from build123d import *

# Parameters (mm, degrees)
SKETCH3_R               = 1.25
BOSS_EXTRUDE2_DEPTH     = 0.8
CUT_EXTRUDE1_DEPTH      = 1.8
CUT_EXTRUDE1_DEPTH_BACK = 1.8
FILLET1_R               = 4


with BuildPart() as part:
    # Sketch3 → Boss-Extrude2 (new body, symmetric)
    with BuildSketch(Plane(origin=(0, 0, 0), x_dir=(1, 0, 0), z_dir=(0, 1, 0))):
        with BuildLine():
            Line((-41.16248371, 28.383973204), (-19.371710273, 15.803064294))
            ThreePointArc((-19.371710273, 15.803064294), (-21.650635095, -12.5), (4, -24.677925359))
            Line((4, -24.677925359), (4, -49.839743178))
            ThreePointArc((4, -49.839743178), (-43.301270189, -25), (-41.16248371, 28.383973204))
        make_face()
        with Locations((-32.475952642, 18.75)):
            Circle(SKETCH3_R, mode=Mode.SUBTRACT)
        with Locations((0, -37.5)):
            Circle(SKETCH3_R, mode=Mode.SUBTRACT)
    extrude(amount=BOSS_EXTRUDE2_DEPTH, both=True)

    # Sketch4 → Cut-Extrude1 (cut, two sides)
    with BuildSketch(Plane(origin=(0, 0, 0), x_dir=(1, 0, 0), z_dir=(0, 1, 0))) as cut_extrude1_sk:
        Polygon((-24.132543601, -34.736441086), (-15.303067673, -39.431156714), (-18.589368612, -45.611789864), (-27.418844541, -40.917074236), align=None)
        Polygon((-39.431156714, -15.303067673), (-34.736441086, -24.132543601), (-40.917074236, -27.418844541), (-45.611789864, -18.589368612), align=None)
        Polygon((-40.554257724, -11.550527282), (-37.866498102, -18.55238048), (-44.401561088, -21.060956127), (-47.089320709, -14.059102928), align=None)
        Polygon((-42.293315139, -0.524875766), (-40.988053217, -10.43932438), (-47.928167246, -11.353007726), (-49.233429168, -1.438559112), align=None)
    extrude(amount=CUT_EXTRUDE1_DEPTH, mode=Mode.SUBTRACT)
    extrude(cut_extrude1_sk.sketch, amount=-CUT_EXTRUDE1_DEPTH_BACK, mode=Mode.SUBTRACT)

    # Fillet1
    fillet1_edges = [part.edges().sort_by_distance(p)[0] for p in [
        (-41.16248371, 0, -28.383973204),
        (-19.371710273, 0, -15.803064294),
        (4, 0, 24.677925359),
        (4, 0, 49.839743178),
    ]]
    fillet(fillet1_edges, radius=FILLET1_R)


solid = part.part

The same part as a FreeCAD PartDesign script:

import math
import FreeCAD as App
import Part
import Sketcher
from FreeCAD import Vector
Q = App.Units.Quantity


def edges_at(feature, points):
    """Names of the edges that pass closest to the given points."""
    edges = feature.Shape.Edges
    near = lambda p: min(range(len(edges)), key=lambda i: edges[i].distToShape(Part.Vertex(*p))[0])
    return sorted({f"Edge{near(p) + 1}" for p in points})

doc = App.newDocument("Part")
params = doc.addObject("Spreadsheet::Sheet", "Params")
for row, (alias, value) in enumerate([
    ("sketch1_radius", "50 mm"),
    ("sketch1_radius2", "25 mm"),
    ("sketch1_diameter", "2.5 mm"),
    ("pad1_length", "1.6 mm"),
    ("sketch2_length", "10 mm"),
    ("sketch2_length2", "7 mm"),
    ("fillet_radius", "4 mm"),
], start=1):
    params.set(f"A{row}", alias)
    params.set(f"B{row}", "=" + value)
    params.setAlias(f"B{row}", alias)

body = doc.addObject("PartDesign::Body", "Body")

# Sketch on XZ plane
sketch1 = body.newObject("Sketcher::SketchObject", "Sketch")
sketch1.AttachmentSupport = (doc.getObject("XZ_Plane"), [""])
sketch1.MapMode = "FlatFace"
sketch1.addGeometry([
    Part.LineSegment(Vector(-19.37171, -15.803064, 0), Vector(-41.162484, -28.383973, 0)),  # 0
    Part.ArcOfCircle(Part.Circle(Vector(0, 0, 0), Vector(0, 0, 1), 50), math.radians(85.411434), math.radians(214.588566)),  # 1
    Part.LineSegment(Vector(4, 49.839743, 0), Vector(4, 24.677925, 0)),  # 2
    Part.ArcOfCircle(Part.Circle(Vector(0, 0, 0), Vector(0, 0, 1), 25), math.radians(80.793104), math.radians(219.206896)),  # 3
    Part.Circle(Vector(0, 37.5, 0), Vector(0, 0, 1), 1.25),  # 4
    Part.Circle(Vector(-32.475953, -18.75, 0), Vector(0, 0, 1), 1.25),  # 5
], False)
sketch1.addConstraint([
    Sketcher.Constraint("Coincident", 0, 2, 1, 2),
    Sketcher.Constraint("Coincident", 1, 1, 2, 1),
    Sketcher.Constraint("Coincident", 2, 2, 3, 1),
    Sketcher.Constraint("Coincident", 3, 2, 0, 1),
    Sketcher.Constraint("Vertical", 2),
    Sketcher.Constraint("Coincident", 1, 3, -1, 1),
    Sketcher.Constraint("Coincident", 3, 3, -1, 1),
    Sketcher.Constraint("Equal", 4, 5),
    Sketcher.Constraint("PointOnObject", 4, 3, -2),
    Sketcher.Constraint("Radius", 1, 50.0),
    Sketcher.Constraint("Radius", 3, 25.0),
    Sketcher.Constraint("Diameter", 4, 2.5),
    Sketcher.Constraint("Angle", 0, Q("-150 deg")),
    Sketcher.Constraint("DistanceX", -1, 1, 1, 1, 4.0),
    Sketcher.Constraint("DistanceY", -1, 1, 4, 3, 37.5),
    Sketcher.Constraint("DistanceY", 5, 3, -1, 1, 18.75),
    Sketcher.Constraint("DistanceX", 3, 2, -1, 1, 19.37171),
    Sketcher.Constraint("DistanceX", 0, 2, 5, 3, 8.686531),
])
sketch1.setExpression("Constraints[9]", "Params.sketch1_radius")
sketch1.setExpression("Constraints[10]", "Params.sketch1_radius2")
sketch1.setExpression("Constraints[11]", "Params.sketch1_diameter")
pad1 = body.newObject("PartDesign::Pad", "Pad")
pad1.Profile = sketch1
pad1.setExpression("Length", "Params.pad1_length")
pad1.Midplane = True

# Sketch on XZ plane
sketch2 = body.newObject("Sketcher::SketchObject", "Sketch001")
sketch2.AttachmentSupport = (doc.getObject("XZ_Plane"), [""])
sketch2.MapMode = "FlatFace"
sketch2.addGeometry([
    Part.LineSegment(Vector(-15.303068, 39.431157, 0), Vector(-24.132544, 34.736441, 0)),  # 0
    Part.LineSegment(Vector(-24.132544, 34.736441, 0), Vector(-27.418845, 40.917074, 0)),  # 1
    Part.LineSegment(Vector(-27.418845, 40.917074, 0), Vector(-18.589369, 45.61179, 0)),  # 2
    Part.LineSegment(Vector(-18.589369, 45.61179, 0), Vector(-15.303068, 39.431157, 0)),  # 3
    Part.LineSegment(Vector(-40.554258, 11.550527, 0), Vector(-47.089321, 14.059103, 0)),  # 4
    Part.LineSegment(Vector(-47.089321, 14.059103, 0), Vector(-45.394637, 18.473906, 0)),  # 5
    Part.LineSegment(Vector(-45.394637, 18.473906, 0), Vector(-45.61179, 18.589369, 0)),  # 6
    Part.LineSegment(Vector(-45.61179, 18.589369, 0), Vector(-44.671423, 20.357941, 0)),  # 7
    Part.LineSegment(Vector(-44.671423, 20.357941, 0), Vector(-44.401561, 21.060956, 0)),  # 8
    Part.LineSegment(Vector(-44.401561, 21.060956, 0), Vector(-44.315242, 21.027821, 0)),  # 9
    Part.LineSegment(Vector(-44.315242, 21.027821, 0), Vector(-40.917074, 27.418845, 0)),  # 10
    Part.LineSegment(Vector(-40.917074, 27.418845, 0), Vector(-34.736441, 24.132544, 0)),  # 11
    Part.LineSegment(Vector(-34.736441, 24.132544, 0), Vector(-38.289792, 17.449663, 0)),  # 12
    Part.LineSegment(Vector(-38.289792, 17.449663, 0), Vector(-40.554258, 11.550527, 0)),  # 13
    Part.LineSegment(Vector(-40.988053, 10.439324, 0), Vector(-42.293315, 0.524876, 0)),  # 14
    Part.LineSegment(Vector(-42.293315, 0.524876, 0), Vector(-49.233429, 1.438559, 0)),  # 15
    Part.LineSegment(Vector(-49.233429, 1.438559, 0), Vector(-47.928167, 11.353008, 0)),  # 16
    Part.LineSegment(Vector(-47.928167, 11.353008, 0), Vector(-40.988053, 10.439324, 0)),  # 17
], False)
sketch2.addConstraint([
    Sketcher.Constraint("Coincident", 0, 2, 1, 1),
    Sketcher.Constraint("Coincident", 1, 2, 2, 1),
    Sketcher.Constraint("Coincident", 2, 2, 3, 1),
    Sketcher.Constraint("Coincident", 3, 2, 0, 1),
    Sketcher.Constraint("Coincident", 4, 2, 5, 1),
    Sketcher.Constraint("Coincident", 5, 2, 6, 1),
    Sketcher.Constraint("Coincident", 6, 2, 7, 1),
    Sketcher.Constraint("Coincident", 7, 2, 8, 1),
    Sketcher.Constraint("Coincident", 8, 2, 9, 1),
    Sketcher.Constraint("Coincident", 9, 2, 10, 1),
    Sketcher.Constraint("Coincident", 10, 2, 11, 1),
    Sketcher.Constraint("Coincident", 11, 2, 12, 1),
    Sketcher.Constraint("Coincident", 12, 2, 13, 1),
    Sketcher.Constraint("Coincident", 13, 2, 4, 1),
    Sketcher.Constraint("Coincident", 14, 2, 15, 1),
    Sketcher.Constraint("Coincident", 15, 2, 16, 1),
    Sketcher.Constraint("Coincident", 16, 2, 17, 1),
    Sketcher.Constraint("Coincident", 17, 2, 14, 1),
    Sketcher.Constraint("Perpendicular", 0, 1),
    Sketcher.Constraint("Perpendicular", 1, 2),
    Sketcher.Constraint("Perpendicular", 2, 3),
    Sketcher.Constraint("Perpendicular", 4, 5),
    Sketcher.Constraint("Perpendicular", 6, 7),
    Sketcher.Constraint("Parallel", 5, 8),
    Sketcher.Constraint("Perpendicular", 8, 9),
    Sketcher.Constraint("Parallel", 7, 10),
    Sketcher.Constraint("Perpendicular", 10, 11),
    Sketcher.Constraint("Perpendicular", 11, 12),
    Sketcher.Constraint("Perpendicular", 9, 13),
    Sketcher.Constraint("Perpendicular", 14, 15),
    Sketcher.Constraint("Perpendicular", 15, 16),
    Sketcher.Constraint("Perpendicular", 16, 17),
    Sketcher.Constraint("Equal", 3, 4),
    Sketcher.Constraint("Equal", 4, 11),
    Sketcher.Constraint("Equal", 2, 14),
    Sketcher.Constraint("Equal", 11, 15),
    Sketcher.Constraint("Angle", 0, Q("-152 deg")),
    Sketcher.Constraint("Angle", 4, Q("159 deg")),
    Sketcher.Constraint("Angle", 6, Q("152 deg")),
    Sketcher.Constraint("Distance", 0, 10.0),
    Sketcher.Constraint("Distance", 1, 7.0),
    Sketcher.Constraint("Angle", 14, Q("-97.5 deg")),
    Sketcher.Constraint("DistanceX", 6, 2, 12, 2, 7.321998),
    Sketcher.Constraint("DistanceY", 7, 2, 0, 2, 14.378501),
    Sketcher.Constraint("DistanceX", 9, 2, 11, 2, 9.578801),
    Sketcher.Constraint("DistanceY", 16, 2, 5, 2, 7.120898),
    Sketcher.Constraint("Distance", 6, 0.245941),
    Sketcher.Constraint("Distance", 7, 2.003032),
    Sketcher.Constraint("Distance", 8, 0.753032),
    Sketcher.Constraint("Distance", 13, 6.31883),
    Sketcher.Constraint("DistanceY", -1, 1, 0, 2, 34.736441),
    Sketcher.Constraint("DistanceX", 2, 2, -1, 1, 18.589369),
    Sketcher.Constraint("DistanceX", 4, 2, -1, 1, 47.089321),
    Sketcher.Constraint("DistanceX", 15, 2, -1, 1, 49.233429),
])
sketch2.setExpression("Constraints[39]", "Params.sketch2_length")
sketch2.setExpression("Constraints[40]", "Params.sketch2_length2")
pocket1 = body.newObject("PartDesign::Pocket", "Pocket")
pocket1.Profile = sketch2
pocket1.Type = "ThroughAll"
pocket1.Midplane = True
doc.recompute()

fillet = body.newObject("PartDesign::Fillet", "Fillet")
fillet.Base = (pocket1, edges_at(pocket1, [
    (-41.162, 0, -28.384),
    (-19.372, 0, -15.803),
    (4, 0, 24.678),
    (4, 0, 49.84),
]))
fillet.setExpression("Radius", "Params.fillet_radius")

doc.recompute()
